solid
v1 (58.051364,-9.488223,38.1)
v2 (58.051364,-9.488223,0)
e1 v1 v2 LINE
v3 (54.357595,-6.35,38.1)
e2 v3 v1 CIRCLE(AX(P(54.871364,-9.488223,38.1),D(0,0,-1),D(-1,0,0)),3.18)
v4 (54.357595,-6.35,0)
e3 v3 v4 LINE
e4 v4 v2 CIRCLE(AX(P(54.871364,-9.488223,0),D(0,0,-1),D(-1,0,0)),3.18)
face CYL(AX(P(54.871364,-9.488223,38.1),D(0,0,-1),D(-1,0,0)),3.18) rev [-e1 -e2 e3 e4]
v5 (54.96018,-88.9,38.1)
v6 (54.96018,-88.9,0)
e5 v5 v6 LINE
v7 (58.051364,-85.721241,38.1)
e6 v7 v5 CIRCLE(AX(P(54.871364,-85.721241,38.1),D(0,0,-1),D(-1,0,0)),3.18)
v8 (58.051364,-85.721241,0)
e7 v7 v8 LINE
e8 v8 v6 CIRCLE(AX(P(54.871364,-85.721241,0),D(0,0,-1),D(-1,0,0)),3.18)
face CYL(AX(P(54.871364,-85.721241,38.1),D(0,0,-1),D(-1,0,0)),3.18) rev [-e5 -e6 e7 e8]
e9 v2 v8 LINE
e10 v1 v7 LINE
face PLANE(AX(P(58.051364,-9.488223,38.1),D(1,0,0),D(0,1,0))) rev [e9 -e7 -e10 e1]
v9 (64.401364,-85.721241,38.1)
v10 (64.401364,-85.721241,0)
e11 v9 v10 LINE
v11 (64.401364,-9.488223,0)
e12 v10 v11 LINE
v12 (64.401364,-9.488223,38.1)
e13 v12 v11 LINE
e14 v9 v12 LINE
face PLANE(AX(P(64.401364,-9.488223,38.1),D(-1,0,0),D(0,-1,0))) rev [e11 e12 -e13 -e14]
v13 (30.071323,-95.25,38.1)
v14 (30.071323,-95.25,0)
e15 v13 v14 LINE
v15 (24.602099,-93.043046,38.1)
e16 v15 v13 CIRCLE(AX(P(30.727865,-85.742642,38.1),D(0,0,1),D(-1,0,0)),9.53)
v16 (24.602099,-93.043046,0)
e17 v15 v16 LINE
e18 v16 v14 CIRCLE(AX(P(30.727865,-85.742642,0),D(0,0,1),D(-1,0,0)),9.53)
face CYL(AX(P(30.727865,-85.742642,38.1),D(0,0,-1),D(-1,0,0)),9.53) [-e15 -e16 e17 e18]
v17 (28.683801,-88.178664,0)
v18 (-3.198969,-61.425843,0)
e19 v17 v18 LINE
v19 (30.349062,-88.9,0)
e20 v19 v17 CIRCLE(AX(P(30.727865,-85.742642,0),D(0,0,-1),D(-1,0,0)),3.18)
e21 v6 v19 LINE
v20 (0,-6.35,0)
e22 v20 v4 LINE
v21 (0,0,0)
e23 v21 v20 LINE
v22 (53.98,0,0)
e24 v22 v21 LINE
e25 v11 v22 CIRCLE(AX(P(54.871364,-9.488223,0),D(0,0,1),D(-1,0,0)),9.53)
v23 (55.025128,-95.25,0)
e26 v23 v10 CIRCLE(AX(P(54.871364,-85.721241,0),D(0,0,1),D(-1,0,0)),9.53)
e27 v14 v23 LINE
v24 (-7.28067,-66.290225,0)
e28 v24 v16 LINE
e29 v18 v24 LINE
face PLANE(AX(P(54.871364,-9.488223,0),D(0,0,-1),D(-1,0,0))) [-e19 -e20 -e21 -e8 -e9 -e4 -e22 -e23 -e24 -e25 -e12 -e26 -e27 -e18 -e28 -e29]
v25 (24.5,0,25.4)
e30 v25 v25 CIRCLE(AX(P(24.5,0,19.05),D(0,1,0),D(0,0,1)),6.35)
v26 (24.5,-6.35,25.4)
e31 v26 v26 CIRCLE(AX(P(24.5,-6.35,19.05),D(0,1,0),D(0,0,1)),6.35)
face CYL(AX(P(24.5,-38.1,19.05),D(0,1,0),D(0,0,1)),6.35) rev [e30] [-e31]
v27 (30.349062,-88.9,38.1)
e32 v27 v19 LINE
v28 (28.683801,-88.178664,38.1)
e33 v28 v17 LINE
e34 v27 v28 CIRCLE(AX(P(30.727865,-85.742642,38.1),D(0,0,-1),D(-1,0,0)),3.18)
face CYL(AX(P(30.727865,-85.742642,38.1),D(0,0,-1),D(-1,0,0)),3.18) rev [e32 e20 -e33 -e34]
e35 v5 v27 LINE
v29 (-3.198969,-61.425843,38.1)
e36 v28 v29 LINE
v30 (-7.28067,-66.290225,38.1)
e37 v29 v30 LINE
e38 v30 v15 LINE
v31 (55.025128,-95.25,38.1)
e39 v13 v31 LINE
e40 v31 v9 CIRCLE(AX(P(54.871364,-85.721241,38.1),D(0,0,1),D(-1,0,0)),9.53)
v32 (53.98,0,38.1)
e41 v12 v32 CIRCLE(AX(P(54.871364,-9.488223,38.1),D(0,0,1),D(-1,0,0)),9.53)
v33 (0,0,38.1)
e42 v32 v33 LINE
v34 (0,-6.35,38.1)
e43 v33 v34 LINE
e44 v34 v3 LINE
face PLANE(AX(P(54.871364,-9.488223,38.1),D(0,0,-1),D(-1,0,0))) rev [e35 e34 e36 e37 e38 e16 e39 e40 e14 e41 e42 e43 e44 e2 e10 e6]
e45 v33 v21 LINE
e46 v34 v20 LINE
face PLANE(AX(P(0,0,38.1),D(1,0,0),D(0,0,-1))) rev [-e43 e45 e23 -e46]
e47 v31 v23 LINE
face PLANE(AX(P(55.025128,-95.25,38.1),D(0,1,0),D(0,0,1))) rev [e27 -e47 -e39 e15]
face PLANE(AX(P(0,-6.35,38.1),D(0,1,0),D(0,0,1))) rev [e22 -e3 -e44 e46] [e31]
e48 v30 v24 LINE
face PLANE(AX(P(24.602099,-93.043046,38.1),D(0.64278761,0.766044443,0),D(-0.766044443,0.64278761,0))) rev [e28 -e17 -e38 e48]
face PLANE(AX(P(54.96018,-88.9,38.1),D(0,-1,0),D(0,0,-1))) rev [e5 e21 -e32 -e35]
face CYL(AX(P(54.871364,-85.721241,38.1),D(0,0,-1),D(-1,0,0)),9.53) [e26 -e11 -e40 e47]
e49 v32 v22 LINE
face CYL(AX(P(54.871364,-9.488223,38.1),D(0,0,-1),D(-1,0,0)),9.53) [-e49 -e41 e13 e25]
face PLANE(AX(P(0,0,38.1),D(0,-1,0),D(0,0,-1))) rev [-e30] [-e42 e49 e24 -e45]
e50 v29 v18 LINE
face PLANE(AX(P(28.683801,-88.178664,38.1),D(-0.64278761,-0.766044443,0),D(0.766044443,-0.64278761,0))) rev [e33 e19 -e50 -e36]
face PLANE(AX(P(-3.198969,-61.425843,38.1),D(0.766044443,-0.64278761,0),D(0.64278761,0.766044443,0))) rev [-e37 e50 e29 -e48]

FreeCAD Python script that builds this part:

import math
import FreeCAD as App
import Part
import Sketcher
Q = App.Units.Quantity

doc = App.newDocument("Part")
body = doc.addObject("PartDesign::Body", "Body")

# Sketch on XY plane
sketch1 = body.newObject("Sketcher::SketchObject", "Sketch")
sketch1.AttachmentSupport = (doc.getObject("XY_Plane"), [""])
sketch1.MapMode = "FlatFace"
sketch1.addGeometry([
    Part.LineSegment(App.Vector(54, 0, 0), App.Vector(0, 0, 0)),  # 0
    Part.LineSegment(App.Vector(0, 0, 0), App.Vector(0, -6.3, 0)),  # 1
    Part.LineSegment(App.Vector(0, -6.3, 0), App.Vector(54.4, -6.3, 0)),  # 2
    Part.ArcOfCircle(Part.Circle(App.Vector(54.9, -9.5, 0), App.Vector(0, 0, 1), 3.2), math.radians(0), math.radians(99)),  # 3
    Part.LineSegment(App.Vector(58.1, -9.5, 0), App.Vector(58.1, -85.7, 0)),  # 4
    Part.ArcOfCircle(Part.Circle(App.Vector(54.9, -85.7, 0), App.Vector(0, 0, 1), 3.2), math.radians(-88), math.radians(0)),  # 5
    Part.LineSegment(App.Vector(55, -88.9, 0), App.Vector(30.3, -88.9, 0)),  # 6
    Part.ArcOfCircle(Part.Circle(App.Vector(30.7, -85.7, 0), App.Vector(0, 0, 1), 3.2), math.radians(-130), math.radians(-97)),  # 7
    Part.LineSegment(App.Vector(28.7, -88.2, 0), App.Vector(-3.2, -61.4, 0)),  # 8
    Part.LineSegment(App.Vector(-3.2, -61.4, 0), App.Vector(-7.3, -66.3, 0)),  # 9
    Part.LineSegment(App.Vector(-7.3, -66.3, 0), App.Vector(24.6, -93, 0)),  # 10
    Part.ArcOfCircle(Part.Circle(App.Vector(30.7, -85.7, 0), App.Vector(0, 0, 1), 9.5), math.radians(-130), math.radians(-94)),  # 11
    Part.LineSegment(App.Vector(30.1, -95.2, 0), App.Vector(55, -95.2, 0)),  # 12
    Part.ArcOfCircle(Part.Circle(App.Vector(54.9, -85.7, 0), App.Vector(0, 0, 1), 9.5), math.radians(-89), math.radians(0)),  # 13
    Part.LineSegment(App.Vector(64.4, -85.7, 0), App.Vector(64.4, -9.5, 0)),  # 14
    Part.ArcOfCircle(Part.Circle(App.Vector(54.9, -9.5, 0), App.Vector(0, 0, 1), 9.5), math.radians(0), math.radians(95)),  # 15
], False)
sketch1.addConstraint([
    Sketcher.Constraint("Coincident", 0, 2, 1, 1),
    Sketcher.Constraint("Coincident", 1, 2, 2, 1),
    Sketcher.Constraint("Coincident", 2, 2, 3, 2),
    Sketcher.Constraint("Tangent", 3, 1, 4, 1),
    Sketcher.Constraint("Tangent", 4, 2, 5, 2),
    Sketcher.Constraint("Coincident", 5, 1, 6, 1),
    Sketcher.Constraint("Coincident", 6, 2, 7, 2),
    Sketcher.Constraint("Tangent", 7, 1, 8, 1),
    Sketcher.Constraint("Coincident", 8, 2, 9, 1),
    Sketcher.Constraint("Coincident", 9, 2, 10, 1),
    Sketcher.Constraint("Tangent", 10, 2, 11, 1),
    Sketcher.Constraint("Coincident", 11, 2, 12, 1),
    Sketcher.Constraint("Coincident", 12, 2, 13, 1),
    Sketcher.Constraint("Tangent", 13, 2, 14, 1),
    Sketcher.Constraint("Tangent", 14, 2, 15, 1),
    Sketcher.Constraint("Coincident", 15, 2, 0, 1),
    Sketcher.Constraint("Horizontal", 0),
    Sketcher.Constraint("Vertical", 1),
    Sketcher.Constraint("Horizontal", 2),
    Sketcher.Constraint("Vertical", 4),
    Sketcher.Constraint("Horizontal", 6),
    Sketcher.Constraint("Horizontal", 12),
    Sketcher.Constraint("Vertical", 14),
    Sketcher.Constraint("Coincident", 0, 2, -1, 1),
    Sketcher.Constraint("Coincident", 11, 3, 7, 3),
    Sketcher.Constraint("Coincident", 13, 3, 5, 3),
    Sketcher.Constraint("Coincident", 15, 3, 3, 3),
    Sketcher.Constraint("Equal", 3, 5),
    Sketcher.Constraint("Equal", 5, 7),
    Sketcher.Constraint("Equal", 11, 13),
    Sketcher.Constraint("Perpendicular", 8, 9),
    Sketcher.Constraint("Perpendicular", 9, 10),
    Sketcher.Constraint("Angle", 8, Q("140 deg")),
    Sketcher.Constraint("DistanceY", 1, 2, 1, 1, Q("0.25 in")),
    Sketcher.Constraint("DistanceY", 5, 1, -1, 1, Q("3.5 in")),
    Sketcher.Constraint("Distance", 9, Q("0.25 in")),
    Sketcher.Constraint("DistanceY", 11, 2, -1, 1, Q("3.75 in")),
    Sketcher.Constraint("Radius", 3, 3.18),
    Sketcher.Constraint("DistanceY", 4, 2, 4, 1, Q("3.0012999 in")),
    Sketcher.Constraint("DistanceX", 0, 2, 0, 1, 53.98),
    Sketcher.Constraint("DistanceX", 5, 1, 4, 2, Q("0.1217001 in")),
    Sketcher.Constraint("DistanceX", 10, 2, 5, 1, Q("1.1952 in")),
    Sketcher.Constraint("Distance", 8, 41.62),
    Sketcher.Constraint("DistanceY", 7, 3, 5, 3, 0.021402),
])
pad1 = body.newObject("PartDesign::Pad", "Pad")
pad1.Profile = sketch1
pad1.Length = Q("1.5 in")

# Sketch on XZ plane
sketch2 = body.newObject("Sketcher::SketchObject", "Sketch001")
sketch2.AttachmentSupport = (doc.getObject("XZ_Plane"), [""])
sketch2.MapMode = "FlatFace"
sketch2.addGeometry(Part.Circle(App.Vector(24, 19, 0), App.Vector(0, 0, 1), 6), False)
sketch2.addConstraint([
    Sketcher.Constraint("Diameter", 0, Q("0.5 in")),
    Sketcher.Constraint("DistanceY", -1, 1, 0, 3, Q("0.75 in")),
    Sketcher.Constraint("DistanceX", -1, 1, 0, 3, 24.5),
])
pocket1 = body.newObject("PartDesign::Pocket", "Pocket")
pocket1.Profile = sketch2
pocket1.Length = Q("1.5 in")
pocket1.Reversed = True

doc.recompute()
